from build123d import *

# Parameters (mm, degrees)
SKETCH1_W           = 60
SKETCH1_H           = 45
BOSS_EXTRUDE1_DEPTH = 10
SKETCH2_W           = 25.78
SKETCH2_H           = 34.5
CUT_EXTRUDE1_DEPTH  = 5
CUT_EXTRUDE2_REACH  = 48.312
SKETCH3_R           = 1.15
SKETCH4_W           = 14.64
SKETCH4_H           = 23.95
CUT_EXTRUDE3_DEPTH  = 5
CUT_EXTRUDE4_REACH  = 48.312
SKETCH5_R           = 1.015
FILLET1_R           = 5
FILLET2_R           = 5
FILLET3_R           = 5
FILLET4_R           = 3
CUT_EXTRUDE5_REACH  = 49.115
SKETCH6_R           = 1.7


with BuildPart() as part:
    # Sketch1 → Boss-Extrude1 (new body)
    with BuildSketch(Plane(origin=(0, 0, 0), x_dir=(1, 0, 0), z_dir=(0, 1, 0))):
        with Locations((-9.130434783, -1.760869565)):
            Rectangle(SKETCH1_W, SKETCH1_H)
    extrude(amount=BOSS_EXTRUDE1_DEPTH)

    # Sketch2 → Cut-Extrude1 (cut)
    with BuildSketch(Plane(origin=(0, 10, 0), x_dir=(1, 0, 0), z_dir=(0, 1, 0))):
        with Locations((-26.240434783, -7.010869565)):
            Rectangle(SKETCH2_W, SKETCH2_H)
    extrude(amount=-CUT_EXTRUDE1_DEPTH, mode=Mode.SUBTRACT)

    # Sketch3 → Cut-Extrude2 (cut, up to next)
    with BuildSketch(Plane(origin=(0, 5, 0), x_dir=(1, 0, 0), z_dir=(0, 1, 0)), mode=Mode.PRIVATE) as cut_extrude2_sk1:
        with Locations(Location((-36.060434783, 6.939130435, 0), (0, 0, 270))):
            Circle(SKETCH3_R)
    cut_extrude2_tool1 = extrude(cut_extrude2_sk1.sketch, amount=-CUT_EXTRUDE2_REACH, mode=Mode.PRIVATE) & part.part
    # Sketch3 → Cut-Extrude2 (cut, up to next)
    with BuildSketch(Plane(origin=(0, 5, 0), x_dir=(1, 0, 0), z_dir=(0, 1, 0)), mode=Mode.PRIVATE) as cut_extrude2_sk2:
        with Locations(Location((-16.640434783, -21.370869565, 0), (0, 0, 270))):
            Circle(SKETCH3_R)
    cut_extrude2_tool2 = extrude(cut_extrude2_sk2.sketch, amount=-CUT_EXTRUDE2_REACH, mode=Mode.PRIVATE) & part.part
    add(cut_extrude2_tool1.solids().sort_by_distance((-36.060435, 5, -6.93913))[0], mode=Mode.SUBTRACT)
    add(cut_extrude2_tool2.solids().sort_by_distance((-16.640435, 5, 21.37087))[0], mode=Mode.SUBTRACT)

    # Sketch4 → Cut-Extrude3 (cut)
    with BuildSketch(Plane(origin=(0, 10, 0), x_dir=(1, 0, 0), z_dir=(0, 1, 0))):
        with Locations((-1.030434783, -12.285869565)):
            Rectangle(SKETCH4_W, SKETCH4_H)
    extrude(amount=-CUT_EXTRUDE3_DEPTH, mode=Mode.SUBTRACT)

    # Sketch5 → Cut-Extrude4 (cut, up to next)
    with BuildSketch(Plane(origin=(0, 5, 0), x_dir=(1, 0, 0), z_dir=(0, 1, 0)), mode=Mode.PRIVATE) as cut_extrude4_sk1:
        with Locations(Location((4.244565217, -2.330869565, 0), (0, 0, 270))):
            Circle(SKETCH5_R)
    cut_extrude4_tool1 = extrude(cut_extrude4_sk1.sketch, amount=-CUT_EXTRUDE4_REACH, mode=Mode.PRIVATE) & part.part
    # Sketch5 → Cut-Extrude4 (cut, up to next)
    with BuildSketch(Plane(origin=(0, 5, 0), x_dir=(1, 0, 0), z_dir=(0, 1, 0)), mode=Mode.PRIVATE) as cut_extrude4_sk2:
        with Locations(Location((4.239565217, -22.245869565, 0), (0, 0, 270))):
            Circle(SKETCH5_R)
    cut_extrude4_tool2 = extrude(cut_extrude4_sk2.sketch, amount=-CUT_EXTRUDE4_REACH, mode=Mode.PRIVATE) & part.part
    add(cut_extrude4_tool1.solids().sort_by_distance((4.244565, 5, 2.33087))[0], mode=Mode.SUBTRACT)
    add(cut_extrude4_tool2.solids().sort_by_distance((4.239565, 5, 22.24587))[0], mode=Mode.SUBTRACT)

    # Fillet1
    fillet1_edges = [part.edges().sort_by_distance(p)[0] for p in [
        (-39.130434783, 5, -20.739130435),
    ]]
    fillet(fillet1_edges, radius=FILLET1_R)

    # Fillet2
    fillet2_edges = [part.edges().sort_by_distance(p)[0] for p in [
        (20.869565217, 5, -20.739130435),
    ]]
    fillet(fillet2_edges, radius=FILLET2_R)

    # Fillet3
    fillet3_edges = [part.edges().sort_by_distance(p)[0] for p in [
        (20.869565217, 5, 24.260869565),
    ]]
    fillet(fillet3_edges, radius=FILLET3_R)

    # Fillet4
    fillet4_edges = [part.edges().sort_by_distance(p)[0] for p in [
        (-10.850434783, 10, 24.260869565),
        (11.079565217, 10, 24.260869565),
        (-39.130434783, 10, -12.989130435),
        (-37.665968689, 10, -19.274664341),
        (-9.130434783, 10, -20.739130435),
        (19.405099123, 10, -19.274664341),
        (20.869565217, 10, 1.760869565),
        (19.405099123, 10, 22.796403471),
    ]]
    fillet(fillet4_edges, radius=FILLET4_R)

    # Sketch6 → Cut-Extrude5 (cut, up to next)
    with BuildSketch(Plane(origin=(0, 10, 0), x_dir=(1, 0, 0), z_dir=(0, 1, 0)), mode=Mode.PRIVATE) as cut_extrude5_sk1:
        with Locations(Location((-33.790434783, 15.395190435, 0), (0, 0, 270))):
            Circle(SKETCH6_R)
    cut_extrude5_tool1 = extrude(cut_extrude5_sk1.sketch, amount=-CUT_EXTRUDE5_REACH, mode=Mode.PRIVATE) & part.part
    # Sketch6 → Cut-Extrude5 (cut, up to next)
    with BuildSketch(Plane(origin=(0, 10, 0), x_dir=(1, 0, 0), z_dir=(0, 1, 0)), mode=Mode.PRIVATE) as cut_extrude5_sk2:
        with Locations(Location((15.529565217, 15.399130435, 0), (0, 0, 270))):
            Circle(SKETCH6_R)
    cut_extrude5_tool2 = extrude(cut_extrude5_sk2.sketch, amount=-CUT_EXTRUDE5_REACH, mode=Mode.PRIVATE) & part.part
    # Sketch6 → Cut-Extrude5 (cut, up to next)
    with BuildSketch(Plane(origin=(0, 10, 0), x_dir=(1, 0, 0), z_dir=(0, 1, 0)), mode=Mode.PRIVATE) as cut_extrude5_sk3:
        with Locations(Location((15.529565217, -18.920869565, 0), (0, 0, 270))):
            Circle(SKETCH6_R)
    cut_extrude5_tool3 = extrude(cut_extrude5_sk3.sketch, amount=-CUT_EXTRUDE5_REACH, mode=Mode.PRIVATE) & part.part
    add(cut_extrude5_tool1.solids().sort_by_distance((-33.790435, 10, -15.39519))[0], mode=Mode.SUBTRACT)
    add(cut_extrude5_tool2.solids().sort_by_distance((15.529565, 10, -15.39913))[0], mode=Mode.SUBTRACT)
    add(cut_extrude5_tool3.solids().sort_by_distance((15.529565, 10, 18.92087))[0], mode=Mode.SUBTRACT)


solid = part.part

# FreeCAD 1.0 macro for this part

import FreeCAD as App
import Part
import Sketcher


def edges_at(feature, points):
    """Names of the edges that pass closest to the given points."""
    edges = feature.Shape.Edges
    near = lambda p: min(range(len(edges)), key=lambda i: edges[i].distToShape(Part.Vertex(*p))[0])
    return sorted({f"Edge{near(p) + 1}" for p in points})


def add_polygon(sketch, points):
    """Adds a closed chain of lines whose ends are joined by coincident constraints."""
    first, n = sketch.GeometryCount, len(points)
    for a, b in zip(points, points[1:] + points[:1]):
        sketch.addGeometry(Part.LineSegment(App.Vector(*a, 0), App.Vector(*b, 0)), False)
    for i in range(n):
        sketch.addConstraint(Sketcher.Constraint("Coincident", first + i, 2, first + (i + 1) % n, 1))

doc = App.newDocument("Part")
body = doc.addObject("PartDesign::Body", "Body")

# Sketch on XZ plane
sketch1 = doc.addObject("Sketcher::SketchObject", "Sketch")
body.addObject(sketch1)
sketch1.AttachmentSupport = (doc.XZ_Plane, [""])
sketch1.MapMode = "FlatFace"
add_polygon(sketch1, [(-39, -21), (-39, 24), (21, 24), (21, -21)])  # lines 0-3
sketch1.addConstraint([
    Sketcher.Constraint("Vertical", 0),
    Sketcher.Constraint("Horizontal", 1),
    Sketcher.Constraint("Vertical", 2),
    Sketcher.Constraint("Horizontal", 3),
    Sketcher.Constraint("DistanceX", 1, 1, 1, 2, 60.0),
    Sketcher.Constraint("DistanceY", 0, 1, 0, 2, 45.0),
    Sketcher.Constraint("DistanceY", -1, 1, 0, 2, 24.26087),
    Sketcher.Constraint("DistanceX", 0, 2, -1, 1, 39.130435),
])
pad1 = doc.addObject("PartDesign::Pad", "Pad")
body.addObject(pad1)
pad1.Profile = sketch1
pad1.Length = 10
pad1.Reversed = True

# Sketch on XZ plane
sketch2 = doc.addObject("Sketcher::SketchObject", "Sketch001")
body.addObject(sketch2)
sketch2.AttachmentSupport = (doc.XZ_Plane, [""])
sketch2.MapMode = "FlatFace"
sketch2.AttachmentOffset = App.Placement(App.Vector(0, 0, -10), App.Rotation())
add_polygon(sketch2, [(-39, -10), (-39, 24), (-13, 24), (-13, -10)])  # lines 0-3
sketch2.addConstraint([
    Sketcher.Constraint("Vertical", 0),
    Sketcher.Constraint("Horizontal", 1),
    Sketcher.Constraint("Vertical", 2),
    Sketcher.Constraint("Horizontal", 3),
    Sketcher.Constraint("DistanceY", 0, 1, 0, 2, 34.5),
    Sketcher.Constraint("DistanceX", 1, 1, 1, 2, 25.78),
    Sketcher.Constraint("DistanceY", -1, 1, 0, 2, 24.26087),
    Sketcher.Constraint("DistanceX", 0, 2, -1, 1, 39.130435),
])
pocket1 = doc.addObject("PartDesign::Pocket", "Pocket")
body.addObject(pocket1)
pocket1.Profile = sketch2
pocket1.Length = 5
pocket1.Reversed = True

# Sketch on XZ plane
sketch3 = doc.addObject("Sketcher::SketchObject", "Sketch002")
body.addObject(sketch3)
sketch3.AttachmentSupport = (doc.XZ_Plane, [""])
sketch3.MapMode = "FlatFace"
sketch3.AttachmentOffset = App.Placement(App.Vector(0, 0, -5), App.Rotation())
sketch3.addGeometry(Part.Circle(App.Vector(-36.1, -6.9, 0), App.Vector(0, 0, 1), 1.1), False)
sketch3.addConstraint([
    Sketcher.Constraint("Diameter", 0, 2.3),
    Sketcher.Constraint("DistanceY", 0, 3, -1, 1, 6.93913),
    Sketcher.Constraint("DistanceX", 0, 3, -1, 1, 36.060435),
])
pocket2 = doc.addObject("PartDesign::Pocket", "Pocket001")
body.addObject(pocket2)
pocket2.Profile = sketch3
pocket2.Type = "UpToFirst"
pocket2.Reversed = True

# Sketch on XZ plane
sketch4 = doc.addObject("Sketcher::SketchObject", "Sketch003")
body.addObject(sketch4)
sketch4.AttachmentSupport = (doc.XZ_Plane, [""])
sketch4.MapMode = "FlatFace"
sketch4.AttachmentOffset = App.Placement(App.Vector(0, 0, -5), App.Rotation())
sketch4.addGeometry(Part.Circle(App.Vector(-16.6, 21.4, 0), App.Vector(0, 0, 1), 1.1), False)
sketch4.addConstraint([
    Sketcher.Constraint("Diameter", 0, 2.3),
    Sketcher.Constraint("DistanceY", -1, 1, 0, 3, 21.37087),
    Sketcher.Constraint("DistanceX", 0, 3, -1, 1, 16.640435),
])
pocket3 = doc.addObject("PartDesign::Pocket", "Pocket002")
body.addObject(pocket3)
pocket3.Profile = sketch4
pocket3.Type = "UpToFirst"
pocket3.Reversed = True

# Sketch on XZ plane
sketch5 = doc.addObject("Sketcher::SketchObject", "Sketch004")
body.addObject(sketch5)
sketch5.AttachmentSupport = (doc.XZ_Plane, [""])
sketch5.MapMode = "FlatFace"
sketch5.AttachmentOffset = App.Placement(App.Vector(0, 0, -10), App.Rotation())
add_polygon(sketch5, [(-8, 0), (-8, 24), (6, 24), (6, 0)])  # lines 0-3
sketch5.addConstraint([
    Sketcher.Constraint("Vertical", 0),
    Sketcher.Constraint("Horizontal", 1),
    Sketcher.Constraint("Vertical", 2),
    Sketcher.Constraint("Horizontal", 3),
    Sketcher.Constraint("DistanceX", 1, 1, 1, 2, 14.64),
    Sketcher.Constraint("DistanceY", 0, 1, 0, 2, 23.95),
    Sketcher.Constraint("DistanceY", -1, 1, 0, 2, 24.26087),
    Sketcher.Constraint("DistanceX", 0, 2, -1, 1, 8.350435),
])
pocket4 = doc.addObject("PartDesign::Pocket", "Pocket003")
body.addObject(pocket4)
pocket4.Profile = sketch5
pocket4.Length = 5
pocket4.Reversed = True

# Sketch on XZ plane
sketch6 = doc.addObject("Sketcher::SketchObject", "Sketch005")
body.addObject(sketch6)
sketch6.AttachmentSupport = (doc.XZ_Plane, [""])
sketch6.MapMode = "FlatFace"
sketch6.AttachmentOffset = App.Placement(App.Vector(0, 0, -5), App.Rotation())
sketch6.addGeometry(Part.Circle(App.Vector(4.2, 2.3, 0), App.Vector(0, 0, 1), 1), False)
sketch6.addConstraint([
    Sketcher.Constraint("Diameter", 0, 2.03),
    Sketcher.Constraint("DistanceY", -1, 1, 0, 3, 2.33087),
    Sketcher.Constraint("DistanceX", -1, 1, 0, 3, 4.244565),
])
pocket5 = doc.addObject("PartDesign::Pocket", "Pocket004")
body.addObject(pocket5)
pocket5.Profile = sketch6
pocket5.Type = "UpToFirst"
pocket5.Reversed = True

# Sketch on XZ plane
sketch7 = doc.addObject("Sketcher::SketchObject", "Sketch006")
body.addObject(sketch7)
sketch7.AttachmentSupport = (doc.XZ_Plane, [""])
sketch7.MapMode = "FlatFace"
sketch7.AttachmentOffset = App.Placement(App.Vector(0, 0, -5), App.Rotation())
sketch7.addGeometry(Part.Circle(App.Vector(4.2, 22.2, 0), App.Vector(0, 0, 1), 1), False)
sketch7.addConstraint([
    Sketcher.Constraint("Diameter", 0, 2.03),
    Sketcher.Constraint("DistanceY", -1, 1, 0, 3, 22.24587),
    Sketcher.Constraint("DistanceX", -1, 1, 0, 3, 4.239565),
])
pocket6 = doc.addObject("PartDesign::Pocket", "Pocket005")
body.addObject(pocket6)
pocket6.Profile = sketch7
pocket6.Type = "UpToFirst"
pocket6.Reversed = True
doc.recompute()

fillet = doc.addObject("PartDesign::Fillet", "Fillet")
body.addObject(fillet)
fillet.Base = (pocket6, edges_at(pocket6, [(-39.13, 5, -20.739)]))
fillet.Radius = 5
doc.recompute()

fillet2 = doc.addObject("PartDesign::Fillet", "Fillet001")
body.addObject(fillet2)
fillet2.Base = (fillet, edges_at(fillet, [(20.87, 5, -20.739)]))
fillet2.Radius = 5
doc.recompute()

fillet3 = doc.addObject("PartDesign::Fillet", "Fillet002")
body.addObject(fillet3)
fillet3.Base = (fillet2, edges_at(fillet2, [(20.87, 5, 24.261)]))
fillet3.Radius = 5
doc.recompute()

fillet4 = doc.addObject("PartDesign::Fillet", "Fillet003")
body.addObject(fillet4)
fillet4.Base = (fillet3, edges_at(fillet3, [
    (-10.85, 10, 24.261),
    (11.08, 10, 24.261),
    (-39.13, 10, -12.989),
    (-37.666, 10, -19.275),
    (-9.13, 10, -20.739),
    (19.405, 10, -19.275),
    (20.87, 10, 1.761),
    (19.405, 10, 22.796),
]))
fillet4.Radius = 3

# Sketch on XZ plane
sketch8 = doc.addObject("Sketcher::SketchObject", "Sketch007")
body.addObject(sketch8)
sketch8.AttachmentSupport = (doc.XZ_Plane, [""])
sketch8.MapMode = "FlatFace"
sketch8.AttachmentOffset = App.Placement(App.Vector(0, 0, -10), App.Rotation())
sketch8.addGeometry(Part.Circle(App.Vector(-33.8, -15.4, 0), App.Vector(0, 0, 1), 1.7), False)
sketch8.addConstraint([
    Sketcher.Constraint("Diameter", 0, 3.4),
    Sketcher.Constraint("DistanceY", 0, 3, -1, 1, 15.39519),
    Sketcher.Constraint("DistanceX", 0, 3, -1, 1, 33.790435),
])
pocket7 = doc.addObject("PartDesign::Pocket", "Pocket006")
body.addObject(pocket7)
pocket7.Profile = sketch8
pocket7.Type = "UpToFirst"
pocket7.Reversed = True

# Sketch on XZ plane
sketch9 = doc.addObject("Sketcher::SketchObject", "Sketch008")
body.addObject(sketch9)
sketch9.AttachmentSupport = (doc.XZ_Plane, [""])
sketch9.MapMode = "FlatFace"
sketch9.AttachmentOffset = App.Placement(App.Vector(0, 0, -10), App.Rotation())
sketch9.addGeometry(Part.Circle(App.Vector(15.5, -15.4, 0), App.Vector(0, 0, 1), 1.7), False)
sketch9.addConstraint([
    Sketcher.Constraint("Diameter", 0, 3.4),
    Sketcher.Constraint("DistanceY", 0, 3, -1, 1, 15.39913),
    Sketcher.Constraint("DistanceX", -1, 1, 0, 3, 15.529565),
])
pocket8 = doc.addObject("PartDesign::Pocket", "Pocket007")
body.addObject(pocket8)
pocket8.Profile = sketch9
pocket8.Type = "UpToFirst"
pocket8.Reversed = True

# Sketch on XZ plane
sketch10 = doc.addObject("Sketcher::SketchObject", "Sketch009")
body.addObject(sketch10)
sketch10.AttachmentSupport = (doc.XZ_Plane, [""])
sketch10.MapMode = "FlatFace"
sketch10.AttachmentOffset = App.Placement(App.Vector(0, 0, -10), App.Rotation())
sketch10.addGeometry(Part.Circle(App.Vector(15.5, 18.9, 0), App.Vector(0, 0, 1), 1.7), False)
sketch10.addConstraint([
    Sketcher.Constraint("Diameter", 0, 3.4),
    Sketcher.Constraint("DistanceY", -1, 1, 0, 3, 18.92087),
    Sketcher.Constraint("DistanceX", -1, 1, 0, 3, 15.529565),
])
pocket9 = doc.addObject("PartDesign::Pocket", "Pocket008")
body.addObject(pocket9)
pocket9.Profile = sketch10
pocket9.Type = "UpToFirst"
pocket9.Reversed = True

doc.recompute()
